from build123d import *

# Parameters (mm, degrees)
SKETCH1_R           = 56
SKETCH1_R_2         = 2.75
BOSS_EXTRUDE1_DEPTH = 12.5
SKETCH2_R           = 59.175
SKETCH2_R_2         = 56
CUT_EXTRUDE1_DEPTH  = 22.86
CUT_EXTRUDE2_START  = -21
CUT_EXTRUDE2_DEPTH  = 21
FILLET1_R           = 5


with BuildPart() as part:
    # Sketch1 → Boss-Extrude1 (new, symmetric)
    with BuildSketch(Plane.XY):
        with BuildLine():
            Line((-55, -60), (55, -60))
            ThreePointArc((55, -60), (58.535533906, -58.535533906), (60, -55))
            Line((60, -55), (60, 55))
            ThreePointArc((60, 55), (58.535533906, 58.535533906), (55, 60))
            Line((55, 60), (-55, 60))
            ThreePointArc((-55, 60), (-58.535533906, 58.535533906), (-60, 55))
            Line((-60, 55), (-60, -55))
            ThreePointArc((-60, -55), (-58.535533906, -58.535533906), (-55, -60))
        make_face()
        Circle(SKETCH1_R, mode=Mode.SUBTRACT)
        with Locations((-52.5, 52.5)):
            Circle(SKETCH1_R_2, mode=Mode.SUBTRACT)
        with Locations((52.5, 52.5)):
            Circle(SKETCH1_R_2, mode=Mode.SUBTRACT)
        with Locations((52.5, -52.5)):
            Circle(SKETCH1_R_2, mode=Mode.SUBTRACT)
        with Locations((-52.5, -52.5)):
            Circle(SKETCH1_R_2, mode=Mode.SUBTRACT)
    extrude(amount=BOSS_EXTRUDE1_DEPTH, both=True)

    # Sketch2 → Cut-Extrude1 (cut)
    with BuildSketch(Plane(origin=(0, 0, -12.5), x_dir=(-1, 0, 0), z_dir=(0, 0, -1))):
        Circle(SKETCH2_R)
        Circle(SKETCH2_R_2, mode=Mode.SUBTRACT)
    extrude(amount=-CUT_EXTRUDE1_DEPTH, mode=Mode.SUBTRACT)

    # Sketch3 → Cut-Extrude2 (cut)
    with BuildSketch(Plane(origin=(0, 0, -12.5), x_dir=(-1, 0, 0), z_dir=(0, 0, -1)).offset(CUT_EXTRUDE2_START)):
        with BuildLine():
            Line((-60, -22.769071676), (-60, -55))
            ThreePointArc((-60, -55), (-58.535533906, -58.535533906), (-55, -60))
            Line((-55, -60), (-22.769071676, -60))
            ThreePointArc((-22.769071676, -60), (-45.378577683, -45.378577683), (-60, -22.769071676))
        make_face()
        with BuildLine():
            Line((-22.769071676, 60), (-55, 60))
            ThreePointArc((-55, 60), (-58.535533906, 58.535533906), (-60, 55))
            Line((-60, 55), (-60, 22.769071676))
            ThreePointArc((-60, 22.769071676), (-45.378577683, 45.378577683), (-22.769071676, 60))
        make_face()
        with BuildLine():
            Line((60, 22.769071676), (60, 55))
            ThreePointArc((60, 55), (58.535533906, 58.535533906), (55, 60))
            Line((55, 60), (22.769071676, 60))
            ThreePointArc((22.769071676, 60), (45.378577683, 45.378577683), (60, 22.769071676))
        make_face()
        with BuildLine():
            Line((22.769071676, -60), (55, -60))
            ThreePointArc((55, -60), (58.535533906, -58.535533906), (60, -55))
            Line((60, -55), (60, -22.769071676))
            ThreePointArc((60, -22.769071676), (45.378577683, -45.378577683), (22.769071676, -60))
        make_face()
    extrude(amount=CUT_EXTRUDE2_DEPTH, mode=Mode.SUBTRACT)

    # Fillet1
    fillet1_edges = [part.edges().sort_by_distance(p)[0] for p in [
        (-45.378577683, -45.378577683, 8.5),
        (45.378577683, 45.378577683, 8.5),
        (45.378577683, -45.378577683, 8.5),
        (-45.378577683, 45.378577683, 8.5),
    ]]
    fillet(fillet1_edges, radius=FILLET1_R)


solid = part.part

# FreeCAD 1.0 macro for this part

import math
import FreeCAD as App
import Part
import Sketcher


def edges_at(feature, points):
    """Names of the edges that pass closest to the given points."""
    edges = feature.Shape.Edges
    near = lambda p: min(range(len(edges)), key=lambda i: edges[i].distToShape(Part.Vertex(*p))[0])
    return sorted({f"Edge{near(p) + 1}" for p in points})

doc = App.newDocument("Part")
params = doc.addObject("Spreadsheet::Sheet", "Params")
for row, (alias, value) in enumerate([
    ("sketch1_diameter", "112 mm"),
    ("sketch1_radius", "5 mm"),
    ("sketch1_diameter2", "5.5 mm"),
    ("sketch1_width", "110 mm"),
    ("pad1_length", "25 mm"),
    ("sketch2_diameter", "112 mm"),
    ("sketch2_diameter2", "118.35 mm"),
    ("pocket1_length", "22.86 mm"),
    ("sketch3_radius", "5 mm"),
    ("pocket2_length", "21 mm"),
    ("fillet_radius", "5 mm"),
], start=1):
    params.set(f"A{row}", alias)
    params.set(f"B{row}", "=" + value)
    params.setAlias(f"B{row}", alias)

body = doc.addObject("PartDesign::Body", "Body")

# Sketch on XY plane
sketch1 = body.newObject("Sketcher::SketchObject", "Sketch")
sketch1.AttachmentSupport = (doc.getObject("XY_Plane"), [""])
sketch1.MapMode = "FlatFace"
sketch1.addGeometry([
    Part.LineSegment(App.Vector(-55, -60, 0), App.Vector(55, -60, 0)),  # 0
    Part.ArcOfCircle(Part.Circle(App.Vector(55, -55, 0), App.Vector(0, 0, 1), 5), math.radians(-90), math.radians(0)),  # 1
    Part.LineSegment(App.Vector(60, -55, 0), App.Vector(60, 55, 0)),  # 2
    Part.ArcOfCircle(Part.Circle(App.Vector(55, 55, 0), App.Vector(0, 0, 1), 5), math.radians(0), math.radians(90)),  # 3
    Part.LineSegment(App.Vector(55, 60, 0), App.Vector(-55, 60, 0)),  # 4
    Part.ArcOfCircle(Part.Circle(App.Vector(-55, 55, 0), App.Vector(0, 0, 1), 5), math.radians(90), math.radians(180)),  # 5
    Part.LineSegment(App.Vector(-60, 55, 0), App.Vector(-60, -55, 0)),  # 6
    Part.ArcOfCircle(Part.Circle(App.Vector(-55, -55, 0), App.Vector(0, 0, 1), 5), math.radians(180), math.radians(270)),  # 7
    Part.Circle(App.Vector(-52.5, -52.5, 0), App.Vector(0, 0, 1), 2.8),  # 8
    Part.Circle(App.Vector(52.5, -52.5, 0), App.Vector(0, 0, 1), 2.8),  # 9
    Part.Circle(App.Vector(-52.5, 52.5, 0), App.Vector(0, 0, 1), 2.8),  # 10
    Part.Circle(App.Vector(0, 0, 0), App.Vector(0, 0, 1), 56),  # 11
    Part.Circle(App.Vector(52.5, 52.5, 0), App.Vector(0, 0, 1), 2.8),  # 12
], False)
sketch1.addConstraint([
    Sketcher.Constraint("Tangent", 0, 2, 1, 1),
    Sketcher.Constraint("Tangent", 1, 2, 2, 1),
    Sketcher.Constraint("Tangent", 2, 2, 3, 1),
    Sketcher.Constraint("Tangent", 3, 2, 4, 1),
    Sketcher.Constraint("Tangent", 4, 2, 5, 1),
    Sketcher.Constraint("Tangent", 5, 2, 6, 1),
    Sketcher.Constraint("Tangent", 6, 2, 7, 1),
    Sketcher.Constraint("Tangent", 7, 2, 0, 1),
    Sketcher.Constraint("Horizontal", 0),
    Sketcher.Constraint("Vertical", 2),
    Sketcher.Constraint("Horizontal", 4),
    Sketcher.Constraint("Vertical", 6),
    Sketcher.Constraint("Coincident", 11, 3, -1, 1),
    Sketcher.Constraint("Equal", 1, 3),
    Sketcher.Constraint("Equal", 3, 5),
    Sketcher.Constraint("Equal", 5, 7),
    Sketcher.Constraint("Equal", 8, 9),
    Sketcher.Constraint("Equal", 9, 10),
    Sketcher.Constraint("Equal", 10, 12),
    Sketcher.Constraint("Symmetric", 1, 3, 5, 3, -1, 1),
    Sketcher.Constraint("Symmetric", 9, 3, 10, 3, -1, 1),
    Sketcher.Constraint("Symmetric", 8, 3, 12, 3, -1, 1),
    Sketcher.Constraint("Symmetric", 8, 3, 9, 3, -2),
    Sketcher.Constraint("Equal", 4, 2),
    Sketcher.Constraint("Diameter", 11, 112.0),
    Sketcher.Constraint("Radius", 1, 5.0),
    Sketcher.Constraint("Diameter", 8, 5.5),
    Sketcher.Constraint("DistanceX", 0, 1, 0, 2, 110.0),
    Sketcher.Constraint("DistanceX", 8, 3, 9, 3, 105.0),
    Sketcher.Constraint("DistanceY", 8, 3, 10, 3, 105.0),
])
sketch1.setExpression("Constraints[24]", "Params.sketch1_diameter")
sketch1.setExpression("Constraints[25]", "Params.sketch1_radius")
sketch1.setExpression("Constraints[26]", "Params.sketch1_diameter2")
sketch1.setExpression("Constraints[27]", "Params.sketch1_width")
pad1 = body.newObject("PartDesign::Pad", "Pad")
pad1.Profile = sketch1
pad1.setExpression("Length", "Params.pad1_length")
pad1.Midplane = True

# Sketch on XY plane
sketch2 = body.newObject("Sketcher::SketchObject", "Sketch001")
sketch2.AttachmentSupport = (doc.getObject("XY_Plane"), [""])
sketch2.MapMode = "FlatFace"
sketch2.AttachmentOffset = App.Placement(App.Vector(0, 0, -12.5), App.Rotation())
sketch2.addGeometry([
    Part.Circle(App.Vector(0, 0, 0), App.Vector(0, 0, 1), 59),
    Part.Circle(App.Vector(0, 0, 0), App.Vector(0, 0, 1), 56),
], False)
sketch2.addConstraint([
    Sketcher.Constraint("Coincident", 0, 3, -1, 1),
    Sketcher.Constraint("Coincident", 1, 3, -1, 1),
    Sketcher.Constraint("Diameter", 1, 112.0),
    Sketcher.Constraint("Diameter", 0, 118.35),
])
sketch2.setExpression("Constraints[2]", "Params.sketch2_diameter")
sketch2.setExpression("Constraints[3]", "Params.sketch2_diameter2")
pocket1 = body.newObject("PartDesign::Pocket", "Pocket")
pocket1.Profile = sketch2
pocket1.setExpression("Length", "Params.pocket1_length")
pocket1.Reversed = True

# Sketch on XY plane
sketch3 = body.newObject("Sketcher::SketchObject", "Sketch002")
sketch3.AttachmentSupport = (doc.getObject("XY_Plane"), [""])
sketch3.MapMode = "FlatFace"
sketch3.AttachmentOffset = App.Placement(App.Vector(0, 0, 8.5), App.Rotation())
sketch3.addGeometry([
    Part.LineSegment(App.Vector(60, -23, 0), App.Vector(60, -55, 0)),  # 0
    Part.ArcOfCircle(Part.Circle(App.Vector(55, -55, 0), App.Vector(0, 0, 1), 5), math.radians(-90), math.radians(0)),  # 1
    Part.LineSegment(App.Vector(55, -60, 0), App.Vector(23, -60, 0)),  # 2
    Part.ArcOfCircle(Part.Circle(App.Vector(0, 0, 0), App.Vector(0, 0, 1), 64), math.radians(-69), math.radians(-21)),  # 3
    Part.LineSegment(App.Vector(23, 60, 0), App.Vector(55, 60, 0)),  # 4
    Part.ArcOfCircle(Part.Circle(App.Vector(55, 55, 0), App.Vector(0, 0, 1), 5), math.radians(0), math.radians(90)),  # 5
    Part.LineSegment(App.Vector(60, 55, 0), App.Vector(60, 23, 0)),  # 6
    Part.ArcOfCircle(Part.Circle(App.Vector(0, 0, 0), App.Vector(0, 0, 1), 64), math.radians(21), math.radians(69)),  # 7
    Part.LineSegment(App.Vector(-60, 23, 0), App.Vector(-60, 55, 0)),  # 8
    Part.ArcOfCircle(Part.Circle(App.Vector(-55, 55, 0), App.Vector(0, 0, 1), 5), math.radians(90), math.radians(180)),  # 9
    Part.LineSegment(App.Vector(-55, 60, 0), App.Vector(-23, 60, 0)),  # 10
    Part.ArcOfCircle(Part.Circle(App.Vector(0, 0, 0), App.Vector(0, 0, 1), 64), math.radians(111), math.radians(159)),  # 11
    Part.LineSegment(App.Vector(-23, -60, 0), App.Vector(-55, -60, 0)),  # 12
    Part.ArcOfCircle(Part.Circle(App.Vector(-55, -55, 0), App.Vector(0, 0, 1), 5), math.radians(180), math.radians(270)),  # 13
    Part.LineSegment(App.Vector(-60, -55, 0), App.Vector(-60, -23, 0)),  # 14
    Part.ArcOfCircle(Part.Circle(App.Vector(0, 0, 0), App.Vector(0, 0, 1), 64), math.radians(-159), math.radians(-111)),  # 15
], False)
sketch3.addConstraint([
    Sketcher.Constraint("Tangent", 0, 2, 1, 2),
    Sketcher.Constraint("Tangent", 1, 1, 2, 1),
    Sketcher.Constraint("Coincident", 2, 2, 3, 1),
    Sketcher.Constraint("Coincident", 3, 2, 0, 1),
    Sketcher.Constraint("Tangent", 4, 2, 5, 2),
    Sketcher.Constraint("Tangent", 5, 1, 6, 1),
    Sketcher.Constraint("Coincident", 6, 2, 7, 1),
    Sketcher.Constraint("Coincident", 7, 2, 4, 1),
    Sketcher.Constraint("Tangent", 8, 2, 9, 2),
    Sketcher.Constraint("Tangent", 9, 1, 10, 1),
    Sketcher.Constraint("Coincident", 10, 2, 11, 1),
    Sketcher.Constraint("Coincident", 11, 2, 8, 1),
    Sketcher.Constraint("Tangent", 12, 2, 13, 2),
    Sketcher.Constraint("Tangent", 13, 1, 14, 1),
    Sketcher.Constraint("Coincident", 14, 2, 15, 1),
    Sketcher.Constraint("Coincident", 15, 2, 12, 1),
    Sketcher.Constraint("Vertical", 0),
    Sketcher.Constraint("Horizontal", 2),
    Sketcher.Constraint("Horizontal", 4),
    Sketcher.Constraint("Vertical", 6),
    Sketcher.Constraint("Vertical", 8),
    Sketcher.Constraint("Horizontal", 10),
    Sketcher.Constraint("Horizontal", 12),
    Sketcher.Constraint("Vertical", 14),
    Sketcher.Constraint("Coincident", 3, 3, -1, 1),
    Sketcher.Constraint("Coincident", 7, 3, -1, 1),
    Sketcher.Constraint("Coincident", 11, 3, -1, 1),
    Sketcher.Constraint("Coincident", 15, 3, -1, 1),
    Sketcher.Constraint("Equal", 1, 5),
    Sketcher.Constraint("Equal", 3, 7),
    Sketcher.Constraint("Equal", 5, 9),
    Sketcher.Constraint("Equal", 7, 11),
    Sketcher.Constraint("Equal", 9, 13),
    Sketcher.Constraint("Equal", 11, 15),
    Sketcher.Constraint("Symmetric", 1, 3, 9, 3, -1, 1),
    Sketcher.Constraint("Symmetric", 5, 3, 13, 3, -1, 1),
    Sketcher.Constraint("Symmetric", 5, 3, 9, 3, -2),
    Sketcher.Constraint("Equal", 12, 0),
    Sketcher.Constraint("Radius", 1, 5.0),
    Sketcher.Constraint("DistanceX", -1, 1, 1, 3, 55.0),
    Sketcher.Constraint("Radius", 3, 64.175),
])
sketch3.setExpression("Constraints[38]", "Params.sketch3_radius")
pocket2 = body.newObject("PartDesign::Pocket", "Pocket001")
pocket2.Profile = sketch3
pocket2.setExpression("Length", "Params.pocket2_length")
doc.recompute()

fillet = body.newObject("PartDesign::Fillet", "Fillet")
fillet.Base = (pocket2, edges_at(pocket2, [
    (-45.379, -45.379, 8.5),
    (45.379, 45.379, 8.5),
    (45.379, -45.379, 8.5),
    (-45.379, 45.379, 8.5),
]))
fillet.setExpression("Radius", "Params.fillet_radius")

doc.recompute()
